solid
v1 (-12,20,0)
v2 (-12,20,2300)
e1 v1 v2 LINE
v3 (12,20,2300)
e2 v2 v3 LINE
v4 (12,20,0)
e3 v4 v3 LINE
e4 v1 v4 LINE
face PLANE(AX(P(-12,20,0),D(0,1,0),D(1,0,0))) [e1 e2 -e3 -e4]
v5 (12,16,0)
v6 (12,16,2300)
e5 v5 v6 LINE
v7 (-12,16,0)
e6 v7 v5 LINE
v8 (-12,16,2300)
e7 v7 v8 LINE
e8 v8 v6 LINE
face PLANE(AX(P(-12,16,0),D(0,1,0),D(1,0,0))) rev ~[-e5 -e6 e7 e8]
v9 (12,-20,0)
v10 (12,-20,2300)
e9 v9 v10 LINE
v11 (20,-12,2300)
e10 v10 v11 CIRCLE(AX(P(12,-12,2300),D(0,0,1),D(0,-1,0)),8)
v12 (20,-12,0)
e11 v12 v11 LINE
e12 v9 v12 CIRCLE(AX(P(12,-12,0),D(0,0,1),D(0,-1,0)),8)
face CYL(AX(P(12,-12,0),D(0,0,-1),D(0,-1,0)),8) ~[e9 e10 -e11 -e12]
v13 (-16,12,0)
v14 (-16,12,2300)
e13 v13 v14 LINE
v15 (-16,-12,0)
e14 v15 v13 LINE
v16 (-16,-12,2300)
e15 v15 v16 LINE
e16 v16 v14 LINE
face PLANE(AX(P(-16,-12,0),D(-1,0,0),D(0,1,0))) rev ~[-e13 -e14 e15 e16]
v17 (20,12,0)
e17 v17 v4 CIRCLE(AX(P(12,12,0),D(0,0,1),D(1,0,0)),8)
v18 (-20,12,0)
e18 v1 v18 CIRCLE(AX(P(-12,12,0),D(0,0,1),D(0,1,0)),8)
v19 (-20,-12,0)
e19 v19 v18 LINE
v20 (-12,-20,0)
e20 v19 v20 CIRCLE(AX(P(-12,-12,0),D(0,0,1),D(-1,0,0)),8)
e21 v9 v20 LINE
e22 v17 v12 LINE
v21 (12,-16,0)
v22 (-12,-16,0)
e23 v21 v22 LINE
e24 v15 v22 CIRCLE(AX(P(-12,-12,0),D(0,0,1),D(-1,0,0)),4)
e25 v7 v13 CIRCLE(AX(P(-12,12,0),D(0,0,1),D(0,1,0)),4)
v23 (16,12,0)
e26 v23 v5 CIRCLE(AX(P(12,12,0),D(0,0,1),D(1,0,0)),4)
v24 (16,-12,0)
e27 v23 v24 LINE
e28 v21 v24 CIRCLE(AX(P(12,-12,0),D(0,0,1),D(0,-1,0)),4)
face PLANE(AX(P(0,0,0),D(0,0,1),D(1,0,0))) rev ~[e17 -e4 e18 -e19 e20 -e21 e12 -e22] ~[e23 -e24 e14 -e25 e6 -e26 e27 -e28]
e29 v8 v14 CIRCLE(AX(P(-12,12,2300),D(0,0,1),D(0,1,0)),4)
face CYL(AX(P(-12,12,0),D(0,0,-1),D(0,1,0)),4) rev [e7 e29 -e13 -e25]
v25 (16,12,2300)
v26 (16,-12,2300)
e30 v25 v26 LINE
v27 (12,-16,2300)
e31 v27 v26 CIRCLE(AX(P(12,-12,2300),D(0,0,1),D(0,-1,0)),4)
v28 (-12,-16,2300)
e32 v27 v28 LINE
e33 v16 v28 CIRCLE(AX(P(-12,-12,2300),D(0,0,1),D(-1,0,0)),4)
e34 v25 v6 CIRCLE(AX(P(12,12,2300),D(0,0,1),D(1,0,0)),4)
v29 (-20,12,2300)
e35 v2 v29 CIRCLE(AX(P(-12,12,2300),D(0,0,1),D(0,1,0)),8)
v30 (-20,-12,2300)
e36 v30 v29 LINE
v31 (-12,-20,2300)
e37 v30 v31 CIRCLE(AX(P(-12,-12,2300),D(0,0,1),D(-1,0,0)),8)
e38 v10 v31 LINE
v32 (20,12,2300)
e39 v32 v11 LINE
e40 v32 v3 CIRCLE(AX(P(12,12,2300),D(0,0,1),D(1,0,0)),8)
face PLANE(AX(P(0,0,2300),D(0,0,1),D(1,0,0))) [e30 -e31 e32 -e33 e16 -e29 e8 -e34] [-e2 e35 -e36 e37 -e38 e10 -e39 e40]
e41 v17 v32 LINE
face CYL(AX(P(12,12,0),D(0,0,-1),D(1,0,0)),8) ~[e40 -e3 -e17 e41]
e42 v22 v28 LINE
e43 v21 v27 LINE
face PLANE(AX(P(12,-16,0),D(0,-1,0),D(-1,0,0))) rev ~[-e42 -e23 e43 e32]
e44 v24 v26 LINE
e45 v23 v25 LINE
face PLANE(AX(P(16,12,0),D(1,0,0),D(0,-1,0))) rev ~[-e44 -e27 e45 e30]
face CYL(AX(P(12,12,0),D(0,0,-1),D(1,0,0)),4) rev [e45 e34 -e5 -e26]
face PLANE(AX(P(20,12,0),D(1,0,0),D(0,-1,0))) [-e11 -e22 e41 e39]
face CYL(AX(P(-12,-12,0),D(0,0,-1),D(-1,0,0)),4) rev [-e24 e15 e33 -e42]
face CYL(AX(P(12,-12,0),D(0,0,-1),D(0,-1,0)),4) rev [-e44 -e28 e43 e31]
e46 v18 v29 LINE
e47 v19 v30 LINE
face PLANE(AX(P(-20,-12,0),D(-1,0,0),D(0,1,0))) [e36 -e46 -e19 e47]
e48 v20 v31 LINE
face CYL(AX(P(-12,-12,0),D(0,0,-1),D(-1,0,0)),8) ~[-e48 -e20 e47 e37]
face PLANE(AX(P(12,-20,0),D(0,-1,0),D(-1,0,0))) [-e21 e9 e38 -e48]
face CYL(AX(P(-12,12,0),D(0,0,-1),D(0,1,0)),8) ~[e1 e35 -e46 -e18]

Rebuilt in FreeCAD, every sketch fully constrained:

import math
import FreeCAD as App
import Part
import Sketcher

V = App.Vector
Q = App.Units.Quantity

doc = App.newDocument("Part")
body = doc.addObject("PartDesign::Body", "Body")

# Sketch on XY plane
sketch1 = body.newObject("Sketcher::SketchObject", "Sketch")
sketch1.AttachmentSupport = (doc.getObject("XY_Plane"), [""])
sketch1.MapMode = "FlatFace"
sketch1.addGeometry(Part.LineSegment(V(-20, 12, 0), V(-20, -12, 0)), False)
sketch1.addGeometry(Part.ArcOfCircle(Part.Circle(V(-12, -12, 0), V(0, 0, 1), 8), math.radians(180), math.radians(270)), False)
sketch1.addGeometry(Part.LineSegment(V(-12, -20, 0), V(12, -20, 0)), False)
sketch1.addGeometry(Part.ArcOfCircle(Part.Circle(V(12, -12, 0), V(0, 0, 1), 8), math.radians(-90), math.radians(0)), False)
sketch1.addGeometry(Part.LineSegment(V(20, -12, 0), V(20, 12, 0)), False)
sketch1.addGeometry(Part.ArcOfCircle(Part.Circle(V(12, 12, 0), V(0, 0, 1), 8), math.radians(0), math.radians(90)), False)
sketch1.addGeometry(Part.LineSegment(V(12, 20, 0), V(-12, 20, 0)), False)
sketch1.addGeometry(Part.ArcOfCircle(Part.Circle(V(-12, 12, 0), V(0, 0, 1), 8), math.radians(90), math.radians(180)), False)
sketch1.addGeometry(Part.ArcOfCircle(Part.Circle(V(-12, 12, 0), V(0, 0, 1), 4), math.radians(90), math.radians(180)), False)
sketch1.addGeometry(Part.LineSegment(V(-12, 16, 0), V(12, 16, 0)), False)
sketch1.addGeometry(Part.ArcOfCircle(Part.Circle(V(12, 12, 0), V(0, 0, 1), 4), math.radians(0), math.radians(90)), False)
sketch1.addGeometry(Part.LineSegment(V(16, 12, 0), V(16, -12, 0)), False)
sketch1.addGeometry(Part.ArcOfCircle(Part.Circle(V(12, -12, 0), V(0, 0, 1), 4), math.radians(-90), math.radians(0)), False)
sketch1.addGeometry(Part.LineSegment(V(12, -16, 0), V(-12, -16, 0)), False)
sketch1.addGeometry(Part.ArcOfCircle(Part.Circle(V(-12, -12, 0), V(0, 0, 1), 4), math.radians(180), math.radians(270)), False)
sketch1.addGeometry(Part.LineSegment(V(-16, -12, 0), V(-16, 12, 0)), False)
sketch1.addConstraint(Sketcher.Constraint("Tangent", 0, 2, 1, 1))
sketch1.addConstraint(Sketcher.Constraint("Tangent", 1, 2, 2, 1))
sketch1.addConstraint(Sketcher.Constraint("Tangent", 2, 2, 3, 1))
sketch1.addConstraint(Sketcher.Constraint("Tangent", 3, 2, 4, 1))
sketch1.addConstraint(Sketcher.Constraint("Tangent", 4, 2, 5, 1))
sketch1.addConstraint(Sketcher.Constraint("Tangent", 5, 2, 6, 1))
sketch1.addConstraint(Sketcher.Constraint("Tangent", 6, 2, 7, 1))
sketch1.addConstraint(Sketcher.Constraint("Tangent", 7, 2, 0, 1))
sketch1.addConstraint(Sketcher.Constraint("Tangent", 8, 1, 9, 1))
sketch1.addConstraint(Sketcher.Constraint("Tangent", 9, 2, 10, 2))
sketch1.addConstraint(Sketcher.Constraint("Tangent", 10, 1, 11, 1))
sketch1.addConstraint(Sketcher.Constraint("Tangent", 11, 2, 12, 2))
sketch1.addConstraint(Sketcher.Constraint("Tangent", 12, 1, 13, 1))
sketch1.addConstraint(Sketcher.Constraint("Tangent", 13, 2, 14, 2))
sketch1.addConstraint(Sketcher.Constraint("Tangent", 14, 1, 15, 1))
sketch1.addConstraint(Sketcher.Constraint("Tangent", 15, 2, 8, 2))
sketch1.addConstraint(Sketcher.Constraint("Vertical", 0))
sketch1.addConstraint(Sketcher.Constraint("Horizontal", 2))
sketch1.addConstraint(Sketcher.Constraint("Vertical", 4))
sketch1.addConstraint(Sketcher.Constraint("Horizontal", 6))
sketch1.addConstraint(Sketcher.Constraint("Horizontal", 9))
sketch1.addConstraint(Sketcher.Constraint("Vertical", 11))
sketch1.addConstraint(Sketcher.Constraint("Horizontal", 13))
sketch1.addConstraint(Sketcher.Constraint("Vertical", 15))
sketch1.addConstraint(Sketcher.Constraint("Coincident", 8, 3, 7, 3))
sketch1.addConstraint(Sketcher.Constraint("Coincident", 10, 3, 5, 3))
sketch1.addConstraint(Sketcher.Constraint("Coincident", 12, 3, 3, 3))
sketch1.addConstraint(Sketcher.Constraint("Equal", 1, 3))
sketch1.addConstraint(Sketcher.Constraint("Equal", 3, 5))
sketch1.addConstraint(Sketcher.Constraint("Equal", 5, 7))
sketch1.addConstraint(Sketcher.Constraint("Equal", 12, 14))
sketch1.addConstraint(Sketcher.Constraint("Symmetric", 1, 3, 5, 3, -1, 1))
sketch1.addConstraint(Sketcher.Constraint("Equal", 13, 0))
sketch1.addConstraint(Sketcher.Constraint("Radius", 1, Q("8 mm")))
sketch1.addConstraint(Sketcher.Constraint("Radius", 8, Q("4 mm")))
sketch1.addConstraint(Sketcher.Constraint("DistanceX", 0, 2, -1, 1, Q("20 mm")))
pad1 = body.newObject("PartDesign::Pad", "Pad")
pad1.Profile = sketch1
pad1.Length = 2300

doc.recompute()
